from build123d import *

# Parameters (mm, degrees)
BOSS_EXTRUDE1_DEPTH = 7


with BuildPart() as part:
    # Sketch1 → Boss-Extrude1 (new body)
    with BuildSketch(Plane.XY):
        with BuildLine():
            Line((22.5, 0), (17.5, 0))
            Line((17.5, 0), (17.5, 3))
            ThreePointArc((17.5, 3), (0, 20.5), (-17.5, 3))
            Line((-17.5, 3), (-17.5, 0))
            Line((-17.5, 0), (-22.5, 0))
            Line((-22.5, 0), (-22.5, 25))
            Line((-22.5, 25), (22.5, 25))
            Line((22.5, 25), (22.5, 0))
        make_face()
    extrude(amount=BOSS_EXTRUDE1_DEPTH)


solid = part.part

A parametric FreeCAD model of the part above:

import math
import FreeCAD as App
import Part
import Sketcher
from FreeCAD import Vector

doc = App.newDocument("Part")
body = doc.addObject("PartDesign::Body", "Body")

# Sketch on XY plane
sketch1 = body.newObject("Sketcher::SketchObject", "Sketch")
sketch1.AttachmentSupport = (doc.getObject("XY_Plane"), [""])
sketch1.MapMode = "FlatFace"
sketch1.addGeometry([
    Part.LineSegment(Vector(17.5, 0, 0), Vector(22.5, 0, 0)),  # 0
    Part.LineSegment(Vector(22.5, 0, 0), Vector(22.5, 25, 0)),  # 1
    Part.LineSegment(Vector(22.5, 25, 0), Vector(-22.5, 25, 0)),  # 2
    Part.LineSegment(Vector(-22.5, 25, 0), Vector(-22.5, 0, 0)),  # 3
    Part.LineSegment(Vector(-22.5, 0, 0), Vector(-17.5, 0, 0)),  # 4
    Part.LineSegment(Vector(-17.5, 0, 0), Vector(-17.5, 3, 0)),  # 5
    Part.ArcOfCircle(Part.Circle(Vector(0, 3, 0), Vector(0, 0, 1), 17.5), math.radians(0), math.radians(180)),  # 6
    Part.LineSegment(Vector(17.5, 3, 0), Vector(17.5, 0, 0)),  # 7
], False)
sketch1.addConstraint([
    Sketcher.Constraint("Coincident", 0, 2, 1, 1),
    Sketcher.Constraint("Coincident", 1, 2, 2, 1),
    Sketcher.Constraint("Coincident", 2, 2, 3, 1),
    Sketcher.Constraint("Coincident", 3, 2, 4, 1),
    Sketcher.Constraint("Coincident", 4, 2, 5, 1),
    Sketcher.Constraint("Tangent", 5, 2, 6, 2),
    Sketcher.Constraint("Tangent", 6, 1, 7, 1),
    Sketcher.Constraint("Coincident", 7, 2, 0, 1),
    Sketcher.Constraint("Horizontal", 0),
    Sketcher.Constraint("Vertical", 1),
    Sketcher.Constraint("Horizontal", 2),
    Sketcher.Constraint("Vertical", 3),
    Sketcher.Constraint("Horizontal", 4),
    Sketcher.Constraint("Vertical", 5),
    Sketcher.Constraint("Vertical", 7),
    Sketcher.Constraint("Symmetric", 0, 2, 3, 2, -1, 1),
    Sketcher.Constraint("Symmetric", 4, 2, 7, 2, -2),
    Sketcher.Constraint("Radius", 6, 17.5),
    Sketcher.Constraint("DistanceX", 0, 1, 0, 2, 5.0),
    Sketcher.Constraint("DistanceY", 1, 1, 1, 2, 25.0),
    Sketcher.Constraint("DistanceY", 5, 1, 5, 2, 3.0),
])
pad1 = body.newObject("PartDesign::Pad", "Pad")
pad1.Profile = sketch1
pad1.Length = 7

doc.recompute()
